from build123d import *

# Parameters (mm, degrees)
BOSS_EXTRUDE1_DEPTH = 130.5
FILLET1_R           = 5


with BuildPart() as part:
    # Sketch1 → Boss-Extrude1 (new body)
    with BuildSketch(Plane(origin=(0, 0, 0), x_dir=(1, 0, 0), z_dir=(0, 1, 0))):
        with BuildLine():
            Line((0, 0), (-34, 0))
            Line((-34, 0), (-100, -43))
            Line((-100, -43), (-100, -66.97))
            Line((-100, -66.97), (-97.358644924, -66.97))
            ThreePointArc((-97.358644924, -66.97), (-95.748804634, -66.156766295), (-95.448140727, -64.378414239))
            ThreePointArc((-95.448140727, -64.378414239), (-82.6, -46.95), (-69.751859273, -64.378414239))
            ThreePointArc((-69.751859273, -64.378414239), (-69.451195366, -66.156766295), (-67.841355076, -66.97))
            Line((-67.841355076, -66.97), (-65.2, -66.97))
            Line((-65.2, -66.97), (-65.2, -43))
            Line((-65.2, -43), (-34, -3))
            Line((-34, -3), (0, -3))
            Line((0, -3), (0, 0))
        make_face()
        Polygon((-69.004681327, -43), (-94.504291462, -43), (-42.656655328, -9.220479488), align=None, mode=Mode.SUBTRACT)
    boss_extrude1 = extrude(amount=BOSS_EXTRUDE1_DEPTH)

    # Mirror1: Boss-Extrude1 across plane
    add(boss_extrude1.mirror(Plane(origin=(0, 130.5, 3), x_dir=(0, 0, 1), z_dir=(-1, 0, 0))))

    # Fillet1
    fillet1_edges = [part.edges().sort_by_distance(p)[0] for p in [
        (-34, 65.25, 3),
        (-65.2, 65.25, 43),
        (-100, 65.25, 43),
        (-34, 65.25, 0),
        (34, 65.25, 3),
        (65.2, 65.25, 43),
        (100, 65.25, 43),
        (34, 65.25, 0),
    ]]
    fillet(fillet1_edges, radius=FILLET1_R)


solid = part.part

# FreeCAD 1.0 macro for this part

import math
import FreeCAD as App
import Part
import Sketcher
from FreeCAD import Vector
Q = App.Units.Quantity


def edges_at(feature, points):
    """Names of the edges that pass closest to the given points."""
    edges = feature.Shape.Edges
    near = lambda p: min(range(len(edges)), key=lambda i: edges[i].distToShape(Part.Vertex(*p))[0])
    return sorted({f"Edge{near(p) + 1}" for p in points})

doc = App.newDocument("Part")
params = doc.addObject("Spreadsheet::Sheet", "Params")
for row, (alias, value) in enumerate([
    ("sketch1_radius", "2 mm"),
    ("sketch1_width", "34 mm"),
    ("sketch1_height", "3 mm"),
    ("sketch1_radius2", "13.45 mm"),
    ("sketch1_height2", "23.97 mm"),
    ("pad1_length", "130.5 mm"),
    ("fillet_radius", "5 mm"),
], start=1):
    params.set(f"A{row}", alias)
    params.set(f"B{row}", "=" + value)
    params.setAlias(f"B{row}", alias)

body = doc.addObject("PartDesign::Body", "Body")

# Sketch on XZ plane
sketch1 = body.newObject("Sketcher::SketchObject", "Sketch")
sketch1.AttachmentSupport = (doc.getObject("XZ_Plane"), [""])
sketch1.MapMode = "FlatFace"
sketch1.addGeometry(Part.LineSegment(Vector(0, 0, 0), Vector(-34, 0, 0)), False)
sketch1.addGeometry(Part.LineSegment(Vector(-34, 0, 0), Vector(-100, 43, 0)), False)
sketch1.addGeometry(Part.LineSegment(Vector(-100, 43, 0), Vector(-100, 66.97, 0)), False)
sketch1.addGeometry(Part.LineSegment(Vector(-100, 66.97, 0), Vector(-97.358645, 66.97, 0)), False)
sketch1.addGeometry(Part.ArcOfCircle(Part.Circle(Vector(-97.358645, 64.97, 0), Vector(0, 0, 1), 2), math.radians(-17.205088), math.radians(90)), False)
sketch1.addGeometry(Part.ArcOfCircle(Part.Circle(Vector(-82.6, 60.4, 0), Vector(0, 0, 1), 13.45), math.radians(162.794912), math.radians(377.205088)), False)
sketch1.addGeometry(Part.ArcOfCircle(Part.Circle(Vector(-67.841355, 64.97, 0), Vector(0, 0, 1), 2), math.radians(90), math.radians(197.205088)), False)
sketch1.addGeometry(Part.LineSegment(Vector(-67.841355, 66.97, 0), Vector(-65.2, 66.97, 0)), False)
sketch1.addGeometry(Part.LineSegment(Vector(-65.2, 66.97, 0), Vector(-65.2, 43, 0)), False)
sketch1.addGeometry(Part.LineSegment(Vector(-65.2, 43, 0), Vector(-34, 3, 0)), False)
sketch1.addGeometry(Part.LineSegment(Vector(-34, 3, 0), Vector(0, 3, 0)), False)
sketch1.addGeometry(Part.LineSegment(Vector(0, 3, 0), Vector(0, 0, 0)), False)
sketch1.addGeometry(Part.LineSegment(Vector(-42.656655, 9.220479, 0), Vector(-69.004681, 43, 0)), False)
sketch1.addGeometry(Part.LineSegment(Vector(-69.004681, 43, 0), Vector(-94.504291, 43, 0)), False)
sketch1.addGeometry(Part.LineSegment(Vector(-94.504291, 43, 0), Vector(-42.656655, 9.220479, 0)), False)
sketch1.addConstraint(Sketcher.Constraint("Coincident", 0, 2, 1, 1))
sketch1.addConstraint(Sketcher.Constraint("Coincident", 1, 2, 2, 1))
sketch1.addConstraint(Sketcher.Constraint("Coincident", 2, 2, 3, 1))
sketch1.addConstraint(Sketcher.Constraint("Tangent", 3, 2, 4, 2))
sketch1.addConstraint(Sketcher.Constraint("Tangent", 4, 1, 5, 1))
sketch1.addConstraint(Sketcher.Constraint("Tangent", 5, 2, 6, 2))
sketch1.addConstraint(Sketcher.Constraint("Tangent", 6, 1, 7, 1))
sketch1.addConstraint(Sketcher.Constraint("Coincident", 7, 2, 8, 1))
sketch1.addConstraint(Sketcher.Constraint("Coincident", 8, 2, 9, 1))
sketch1.addConstraint(Sketcher.Constraint("Coincident", 9, 2, 10, 1))
sketch1.addConstraint(Sketcher.Constraint("Coincident", 10, 2, 11, 1))
sketch1.addConstraint(Sketcher.Constraint("Coincident", 11, 2, 0, 1))
sketch1.addConstraint(Sketcher.Constraint("Coincident", 12, 2, 13, 1))
sketch1.addConstraint(Sketcher.Constraint("Coincident", 13, 2, 14, 1))
sketch1.addConstraint(Sketcher.Constraint("Coincident", 14, 2, 12, 1))
sketch1.addConstraint(Sketcher.Constraint("Horizontal", 0))
sketch1.addConstraint(Sketcher.Constraint("Vertical", 2))
sketch1.addConstraint(Sketcher.Constraint("Horizontal", 3))
sketch1.addConstraint(Sketcher.Constraint("Horizontal", 7))
sketch1.addConstraint(Sketcher.Constraint("Vertical", 8))
sketch1.addConstraint(Sketcher.Constraint("Horizontal", 10))
sketch1.addConstraint(Sketcher.Constraint("Vertical", 11))
sketch1.addConstraint(Sketcher.Constraint("Horizontal", 13))
sketch1.addConstraint(Sketcher.Constraint("Coincident", 11, 2, -1, 1))
sketch1.addConstraint(Sketcher.Constraint("Equal", 4, 6))
sketch1.addConstraint(Sketcher.Constraint("Parallel", 9, 12))
sketch1.addConstraint(Sketcher.Constraint("Parallel", 1, 14))
sketch1.addConstraint(Sketcher.Constraint("Horizontal", 4, 3, 6, 3))
sketch1.addConstraint(Sketcher.Constraint("Horizontal", 1, 2, 8, 2))
sketch1.addConstraint(Sketcher.Constraint("Horizontal", 8, 2, 12, 2))
sketch1.addConstraint(Sketcher.Constraint("Vertical", 0, 2, 9, 2))
sketch1.addConstraint(Sketcher.Constraint("Equal", 3, 7))
sketch1.addConstraint(Sketcher.Constraint("Radius", 4, Q("2 mm")))
sketch1.addConstraint(Sketcher.Constraint("DistanceX", 0, 2, 0, 1, Q("34 mm")))
sketch1.addConstraint(Sketcher.Constraint("DistanceY", 11, 2, 11, 1, Q("3 mm")))
sketch1.addConstraint(Sketcher.Constraint("Radius", 5, Q("13.45 mm")))
sketch1.addConstraint(Sketcher.Constraint("DistanceX", 1, 2, -1, 1, Q("100 mm")))
sketch1.addConstraint(Sketcher.Constraint("DistanceY", -1, 1, 1, 2, Q("43 mm")))
sketch1.addConstraint(Sketcher.Constraint("DistanceY", 2, 1, 2, 2, Q("23.97 mm")))
sketch1.addConstraint(Sketcher.Constraint("DistanceX", 5, 3, -1, 1, Q("82.6 mm")))
sketch1.addConstraint(Sketcher.Constraint("DistanceY", -1, 1, 5, 3, Q("60.4 mm")))
sketch1.addConstraint(Sketcher.Constraint("Distance", 14, Q("61.8808 mm")))
sketch1.addConstraint(Sketcher.Constraint("DistanceX", 12, 2, -1, 1, Q("69.004681 mm")))
sketch1.setExpression("Constraints[32]", "Params.sketch1_radius")
sketch1.setExpression("Constraints[33]", "Params.sketch1_width")
sketch1.setExpression("Constraints[34]", "Params.sketch1_height")
sketch1.setExpression("Constraints[35]", "Params.sketch1_radius2")
sketch1.setExpression("Constraints[38]", "Params.sketch1_height2")
pad1 = body.newObject("PartDesign::Pad", "Pad")
pad1.Profile = sketch1
pad1.setExpression("Length", "Params.pad1_length")
pad1.Reversed = True
doc.recompute()

mirrored = body.newObject("PartDesign::Mirrored", "Mirrored")
mirrored.Originals = [pad1]
mirrored.MirrorPlane = (doc.getObject("YZ_Plane"), [""])
body.Tip = mirrored
doc.recompute()

fillet = body.newObject("PartDesign::Fillet", "Fillet")
fillet.Base = (mirrored, edges_at(mirrored, [
    (-34, 65.25, 3),
    (-65.2, 65.25, 43),
    (-100, 65.25, 43),
    (-34, 65.25, 0),
    (34, 65.25, 3),
    (65.2, 65.25, 43),
    (100, 65.25, 43),
    (34, 65.25, 0),
]))
fillet.setExpression("Radius", "Params.fillet_radius")

doc.recompute()
